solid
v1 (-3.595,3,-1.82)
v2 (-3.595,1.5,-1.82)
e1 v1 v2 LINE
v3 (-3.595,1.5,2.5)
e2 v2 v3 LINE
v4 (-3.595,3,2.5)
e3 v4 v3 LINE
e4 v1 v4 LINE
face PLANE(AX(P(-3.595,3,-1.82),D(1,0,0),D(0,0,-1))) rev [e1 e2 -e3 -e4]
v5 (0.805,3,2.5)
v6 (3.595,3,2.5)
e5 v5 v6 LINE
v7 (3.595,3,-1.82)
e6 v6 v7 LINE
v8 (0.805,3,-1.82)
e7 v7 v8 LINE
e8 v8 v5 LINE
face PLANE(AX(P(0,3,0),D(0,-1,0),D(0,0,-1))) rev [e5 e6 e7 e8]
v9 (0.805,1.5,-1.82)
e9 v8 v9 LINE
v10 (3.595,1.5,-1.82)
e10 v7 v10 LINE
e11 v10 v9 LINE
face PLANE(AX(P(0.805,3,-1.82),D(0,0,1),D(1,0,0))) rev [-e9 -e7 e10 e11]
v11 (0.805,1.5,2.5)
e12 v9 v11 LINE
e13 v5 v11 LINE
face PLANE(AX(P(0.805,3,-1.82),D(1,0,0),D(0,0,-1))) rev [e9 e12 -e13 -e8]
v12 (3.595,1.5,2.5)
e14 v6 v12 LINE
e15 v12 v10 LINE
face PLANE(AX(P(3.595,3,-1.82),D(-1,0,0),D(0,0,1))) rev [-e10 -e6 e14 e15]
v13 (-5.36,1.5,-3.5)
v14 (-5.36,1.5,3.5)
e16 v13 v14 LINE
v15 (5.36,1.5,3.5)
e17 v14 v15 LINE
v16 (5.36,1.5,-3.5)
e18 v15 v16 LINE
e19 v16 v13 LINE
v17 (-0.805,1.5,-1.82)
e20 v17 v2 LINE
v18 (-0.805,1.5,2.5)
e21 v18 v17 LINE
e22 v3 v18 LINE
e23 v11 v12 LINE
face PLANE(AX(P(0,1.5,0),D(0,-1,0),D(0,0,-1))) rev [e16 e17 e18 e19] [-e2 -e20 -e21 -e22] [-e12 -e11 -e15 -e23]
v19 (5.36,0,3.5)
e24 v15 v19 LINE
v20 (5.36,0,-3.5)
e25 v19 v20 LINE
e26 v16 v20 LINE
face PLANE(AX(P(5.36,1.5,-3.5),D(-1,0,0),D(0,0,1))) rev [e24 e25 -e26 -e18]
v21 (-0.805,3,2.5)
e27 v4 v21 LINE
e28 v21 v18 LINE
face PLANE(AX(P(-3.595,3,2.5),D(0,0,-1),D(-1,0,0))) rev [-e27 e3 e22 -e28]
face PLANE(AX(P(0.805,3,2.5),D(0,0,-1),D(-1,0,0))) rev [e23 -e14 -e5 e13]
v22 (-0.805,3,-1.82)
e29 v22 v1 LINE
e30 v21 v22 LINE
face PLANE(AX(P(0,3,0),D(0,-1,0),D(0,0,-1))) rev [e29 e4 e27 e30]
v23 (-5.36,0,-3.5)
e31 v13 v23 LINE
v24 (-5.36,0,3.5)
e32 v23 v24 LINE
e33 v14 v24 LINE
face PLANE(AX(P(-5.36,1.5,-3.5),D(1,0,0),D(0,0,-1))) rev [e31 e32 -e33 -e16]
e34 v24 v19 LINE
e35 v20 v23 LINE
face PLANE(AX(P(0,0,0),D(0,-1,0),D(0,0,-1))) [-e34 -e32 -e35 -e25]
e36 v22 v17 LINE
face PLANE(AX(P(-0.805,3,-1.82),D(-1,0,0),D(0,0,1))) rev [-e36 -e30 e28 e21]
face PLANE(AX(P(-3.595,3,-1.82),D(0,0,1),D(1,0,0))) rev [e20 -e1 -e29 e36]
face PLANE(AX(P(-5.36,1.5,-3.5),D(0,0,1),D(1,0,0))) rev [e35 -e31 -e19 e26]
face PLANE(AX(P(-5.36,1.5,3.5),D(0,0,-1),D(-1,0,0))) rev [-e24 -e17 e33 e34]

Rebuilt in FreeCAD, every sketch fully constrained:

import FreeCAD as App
import Part
import Sketcher

V = App.Vector

doc = App.newDocument("Part")
params = doc.addObject("Spreadsheet::Sheet", "Params")
for row, (alias, value) in enumerate([
    ("sketch1_height", "7 mm"),
    ("sketch1_width", "10.72 mm"),
    ("pad1_length", "1.5 mm"),
    ("sketch2_width", "2.79 mm"),
    ("sketch2_height", "4.32 mm"),
    ("pad2_length", "1.5 mm"),
], start=1):
    params.set(f"A{row}", alias)
    params.set(f"B{row}", "=" + value)
    params.setAlias(f"B{row}", alias)

body = doc.addObject("PartDesign::Body", "Body")

# Sketch on XZ plane
sketch1 = doc.addObject("Sketcher::SketchObject", "Sketch")
body.addObject(sketch1)
sketch1.AttachmentSupport = (doc.XZ_Plane, [""])
sketch1.MapMode = "FlatFace"
sketch1.addGeometry(Part.LineSegment(V(-5.36, -3.5, 0), V(-5.36, 3.5, 0)), False)
sketch1.addGeometry(Part.LineSegment(V(-5.36, 3.5, 0), V(5.36, 3.5, 0)), False)
sketch1.addGeometry(Part.LineSegment(V(5.36, 3.5, 0), V(5.36, -3.5, 0)), False)
sketch1.addGeometry(Part.LineSegment(V(5.36, -3.5, 0), V(-5.36, -3.5, 0)), False)
sketch1.addConstraint(Sketcher.Constraint("Coincident", 0, 2, 1, 1))
sketch1.addConstraint(Sketcher.Constraint("Coincident", 1, 2, 2, 1))
sketch1.addConstraint(Sketcher.Constraint("Coincident", 2, 2, 3, 1))
sketch1.addConstraint(Sketcher.Constraint("Coincident", 3, 2, 0, 1))
sketch1.addConstraint(Sketcher.Constraint("Vertical", 0))
sketch1.addConstraint(Sketcher.Constraint("Horizontal", 1))
sketch1.addConstraint(Sketcher.Constraint("Vertical", 2))
sketch1.addConstraint(Sketcher.Constraint("Horizontal", 3))
sketch1.addConstraint(Sketcher.Constraint("Symmetric", 0, 2, 2, 2, -1, 1))
sketch1.addConstraint(Sketcher.Constraint("DistanceY", 0, 1, 0, 2, 7.0))
sketch1.addConstraint(Sketcher.Constraint("DistanceX", 1, 1, 1, 2, 10.72))
sketch1.setExpression("Constraints[9]", "Params.sketch1_height")
sketch1.setExpression("Constraints[10]", "Params.sketch1_width")
pad1 = doc.addObject("PartDesign::Pad", "Pad")
body.addObject(pad1)
pad1.Profile = sketch1
pad1.setExpression("Length", "Params.pad1_length")
pad1.Reversed = True

# Sketch on XZ plane
sketch2 = doc.addObject("Sketcher::SketchObject", "Sketch001")
body.addObject(sketch2)
sketch2.AttachmentSupport = (doc.XZ_Plane, [""])
sketch2.MapMode = "FlatFace"
sketch2.AttachmentOffset = App.Placement(V(0, 0, -1.5), App.Rotation())
sketch2.addGeometry(Part.LineSegment(V(-3.595, -1.82, 0), V(-3.595, 2.5, 0)), False)
sketch2.addGeometry(Part.LineSegment(V(-3.595, 2.5, 0), V(-0.805, 2.5, 0)), False)
sketch2.addGeometry(Part.LineSegment(V(-0.805, 2.5, 0), V(-0.805, -1.82, 0)), False)
sketch2.addGeometry(Part.LineSegment(V(-0.805, -1.82, 0), V(-3.595, -1.82, 0)), False)
sketch2.addGeometry(Part.LineSegment(V(0.805, -1.82, 0), V(0.805, 2.5, 0)), False)
sketch2.addGeometry(Part.LineSegment(V(0.805, 2.5, 0), V(3.595, 2.5, 0)), False)
sketch2.addGeometry(Part.LineSegment(V(3.595, 2.5, 0), V(3.595, -1.82, 0)), False)
sketch2.addGeometry(Part.LineSegment(V(3.595, -1.82, 0), V(0.805, -1.82, 0)), False)
sketch2.addConstraint(Sketcher.Constraint("Coincident", 0, 2, 1, 1))
sketch2.addConstraint(Sketcher.Constraint("Coincident", 1, 2, 2, 1))
sketch2.addConstraint(Sketcher.Constraint("Coincident", 2, 2, 3, 1))
sketch2.addConstraint(Sketcher.Constraint("Coincident", 3, 2, 0, 1))
sketch2.addConstraint(Sketcher.Constraint("Coincident", 4, 2, 5, 1))
sketch2.addConstraint(Sketcher.Constraint("Coincident", 5, 2, 6, 1))
sketch2.addConstraint(Sketcher.Constraint("Coincident", 6, 2, 7, 1))
sketch2.addConstraint(Sketcher.Constraint("Coincident", 7, 2, 4, 1))
sketch2.addConstraint(Sketcher.Constraint("Vertical", 0))
sketch2.addConstraint(Sketcher.Constraint("Horizontal", 1))
sketch2.addConstraint(Sketcher.Constraint("Vertical", 2))
sketch2.addConstraint(Sketcher.Constraint("Horizontal", 3))
sketch2.addConstraint(Sketcher.Constraint("Vertical", 4))
sketch2.addConstraint(Sketcher.Constraint("Horizontal", 5))
sketch2.addConstraint(Sketcher.Constraint("Vertical", 6))
sketch2.addConstraint(Sketcher.Constraint("Horizontal", 7))
sketch2.addConstraint(Sketcher.Constraint("Symmetric", 1, 2, 4, 2, -2))
sketch2.addConstraint(Sketcher.Constraint("Symmetric", 3, 2, 6, 2, -2))
sketch2.addConstraint(Sketcher.Constraint("DistanceX", 1, 1, 1, 2, 2.79))
sketch2.addConstraint(Sketcher.Constraint("DistanceY", 0, 1, 0, 2, 4.32))
sketch2.addConstraint(Sketcher.Constraint("DistanceY", -1, 1, 0, 2, 2.5))
sketch2.addConstraint(Sketcher.Constraint("DistanceX", 0, 2, 4, 2, 4.4))
sketch2.setExpression("Constraints[18]", "Params.sketch2_width")
sketch2.setExpression("Constraints[19]", "Params.sketch2_height")
pad2 = doc.addObject("PartDesign::Pad", "Pad001")
body.addObject(pad2)
pad2.Profile = sketch2
pad2.setExpression("Length", "Params.pad2_length")
pad2.Reversed = True

doc.recompute()
